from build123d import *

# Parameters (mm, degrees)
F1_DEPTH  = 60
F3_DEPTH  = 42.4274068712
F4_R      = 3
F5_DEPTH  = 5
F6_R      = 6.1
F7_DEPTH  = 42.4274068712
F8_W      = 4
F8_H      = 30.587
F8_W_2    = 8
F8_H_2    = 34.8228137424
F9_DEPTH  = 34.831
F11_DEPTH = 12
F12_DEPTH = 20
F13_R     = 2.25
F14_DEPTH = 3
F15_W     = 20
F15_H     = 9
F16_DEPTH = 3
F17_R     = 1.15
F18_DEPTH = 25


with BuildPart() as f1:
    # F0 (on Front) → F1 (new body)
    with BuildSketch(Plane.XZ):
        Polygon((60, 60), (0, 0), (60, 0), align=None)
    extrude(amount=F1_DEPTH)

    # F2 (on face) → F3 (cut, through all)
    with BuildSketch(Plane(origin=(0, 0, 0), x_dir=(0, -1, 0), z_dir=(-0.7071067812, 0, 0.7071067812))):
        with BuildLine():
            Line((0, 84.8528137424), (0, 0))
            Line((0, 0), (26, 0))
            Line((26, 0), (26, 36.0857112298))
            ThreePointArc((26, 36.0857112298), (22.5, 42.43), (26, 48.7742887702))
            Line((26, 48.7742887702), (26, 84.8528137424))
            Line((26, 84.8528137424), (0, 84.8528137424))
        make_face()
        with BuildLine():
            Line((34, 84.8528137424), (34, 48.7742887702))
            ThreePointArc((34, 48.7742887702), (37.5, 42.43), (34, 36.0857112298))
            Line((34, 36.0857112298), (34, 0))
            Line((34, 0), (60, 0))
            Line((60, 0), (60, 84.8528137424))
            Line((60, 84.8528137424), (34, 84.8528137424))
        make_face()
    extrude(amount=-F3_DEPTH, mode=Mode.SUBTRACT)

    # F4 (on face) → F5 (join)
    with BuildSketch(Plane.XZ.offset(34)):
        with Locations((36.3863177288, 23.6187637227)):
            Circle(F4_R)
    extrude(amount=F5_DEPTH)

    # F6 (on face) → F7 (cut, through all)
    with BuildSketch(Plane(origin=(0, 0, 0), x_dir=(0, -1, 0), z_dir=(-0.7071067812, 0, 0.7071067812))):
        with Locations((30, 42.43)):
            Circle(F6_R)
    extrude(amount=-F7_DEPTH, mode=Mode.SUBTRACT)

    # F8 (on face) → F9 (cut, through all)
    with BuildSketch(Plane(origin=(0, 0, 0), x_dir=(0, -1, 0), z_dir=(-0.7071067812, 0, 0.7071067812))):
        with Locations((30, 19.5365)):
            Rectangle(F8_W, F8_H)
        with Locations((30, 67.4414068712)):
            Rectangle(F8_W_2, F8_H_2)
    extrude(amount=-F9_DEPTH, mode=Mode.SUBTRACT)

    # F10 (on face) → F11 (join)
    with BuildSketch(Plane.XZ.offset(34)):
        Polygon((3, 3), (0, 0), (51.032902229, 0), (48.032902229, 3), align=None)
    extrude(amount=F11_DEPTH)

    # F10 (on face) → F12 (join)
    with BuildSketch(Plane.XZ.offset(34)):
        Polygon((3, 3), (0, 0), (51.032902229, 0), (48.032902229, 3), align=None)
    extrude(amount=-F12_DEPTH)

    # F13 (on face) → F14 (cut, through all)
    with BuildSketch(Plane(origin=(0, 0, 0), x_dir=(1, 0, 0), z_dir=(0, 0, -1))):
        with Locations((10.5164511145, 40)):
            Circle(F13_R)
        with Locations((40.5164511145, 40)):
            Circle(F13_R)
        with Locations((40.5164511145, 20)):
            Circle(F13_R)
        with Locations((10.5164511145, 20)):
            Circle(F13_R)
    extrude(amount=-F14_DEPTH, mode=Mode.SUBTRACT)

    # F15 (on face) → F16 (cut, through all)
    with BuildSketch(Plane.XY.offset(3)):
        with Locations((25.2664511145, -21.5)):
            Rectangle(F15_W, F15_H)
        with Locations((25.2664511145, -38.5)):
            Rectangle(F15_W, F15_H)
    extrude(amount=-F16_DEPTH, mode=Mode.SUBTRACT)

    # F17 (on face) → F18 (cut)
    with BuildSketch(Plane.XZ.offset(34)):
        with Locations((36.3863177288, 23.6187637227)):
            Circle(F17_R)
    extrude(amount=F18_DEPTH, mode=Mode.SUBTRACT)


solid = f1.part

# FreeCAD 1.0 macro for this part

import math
import FreeCAD as App
import Part
import Sketcher

V = App.Vector


def add_polygon(sketch, points):
    """Adds a closed chain of lines whose ends are joined by coincident constraints."""
    first, n = sketch.GeometryCount, len(points)
    for a, b in zip(points, points[1:] + points[:1]):
        sketch.addGeometry(Part.LineSegment(App.Vector(*a, 0), App.Vector(*b, 0)), False)
    for i in range(n):
        sketch.addConstraint(Sketcher.Constraint("Coincident", first + i, 2, first + (i + 1) % n, 1))

doc = App.newDocument("Part")
body = doc.addObject("PartDesign::Body", "Body")

sketch1 = body.newObject("Sketcher::SketchObject", "Sketch")
sketch1.AttachmentSupport = (doc.getObject("XZ_Plane"), [""])
sketch1.MapMode = "FlatFace"
add_polygon(sketch1, [(60, 60), (0, 0), (60, 0)])
sketch1.addConstraint([
    Sketcher.Constraint("Horizontal", 1),
    Sketcher.Constraint("Vertical", 2),
    Sketcher.Constraint("Coincident", 0, 2, -1, 1),
    Sketcher.Constraint("Equal", 1, 2),
    Sketcher.Constraint("DistanceX", 1, 1, 1, 2, 60.0),
])
pad1 = body.newObject("PartDesign::Pad", "Pad")
pad1.Profile = sketch1
pad1.Length = 60

sketch2 = body.newObject("Sketcher::SketchObject", "Sketch001")
sketch2.Placement = App.Placement(V(0, 0, 0), App.Rotation(V(0, -1, 0), V(0.707106781, 0, 0.707106781), V(-0.707106781, 0, 0.707106781), "ZXY"))
sketch2.addGeometry([
    Part.LineSegment(V(0, 85, 0), V(0, 0, 0)),
    Part.LineSegment(V(0, 0, 0), V(26, 0, 0)),
    Part.LineSegment(V(26, 0, 0), V(26, 36, 0)),
    Part.ArcOfCircle(Part.Circle(V(30, 42, 0), V(0, 0, 1), 8), math.radians(122), math.radians(238)),
    Part.LineSegment(V(26, 49, 0), V(26, 85, 0)),
    Part.LineSegment(V(26, 85, 0), V(0, 85, 0)),
    Part.LineSegment(V(34, 85, 0), V(34, 49, 0)),
    Part.ArcOfCircle(Part.Circle(V(30, 42, 0), V(0, 0, 1), 8), math.radians(-58), math.radians(58)),
    Part.LineSegment(V(34, 36, 0), V(34, 0, 0)),
    Part.LineSegment(V(34, 0, 0), V(60, 0, 0)),
    Part.LineSegment(V(60, 0, 0), V(60, 85, 0)),
    Part.LineSegment(V(60, 85, 0), V(34, 85, 0)),
], False)
sketch2.addConstraint([
    Sketcher.Constraint("Coincident", 0, 2, 1, 1),
    Sketcher.Constraint("Coincident", 1, 2, 2, 1),
    Sketcher.Constraint("Coincident", 2, 2, 3, 2),
    Sketcher.Constraint("Coincident", 3, 1, 4, 1),
    Sketcher.Constraint("Coincident", 4, 2, 5, 1),
    Sketcher.Constraint("Coincident", 5, 2, 0, 1),
    Sketcher.Constraint("Coincident", 6, 2, 7, 2),
    Sketcher.Constraint("Coincident", 7, 1, 8, 1),
    Sketcher.Constraint("Coincident", 8, 2, 9, 1),
    Sketcher.Constraint("Coincident", 9, 2, 10, 1),
    Sketcher.Constraint("Coincident", 10, 2, 11, 1),
    Sketcher.Constraint("Coincident", 11, 2, 6, 1),
    Sketcher.Constraint("Vertical", 0),
    Sketcher.Constraint("Horizontal", 1),
    Sketcher.Constraint("Vertical", 2),
    Sketcher.Constraint("Vertical", 4),
    Sketcher.Constraint("Horizontal", 5),
    Sketcher.Constraint("Vertical", 6),
    Sketcher.Constraint("Vertical", 8),
    Sketcher.Constraint("Horizontal", 9),
    Sketcher.Constraint("Vertical", 10),
    Sketcher.Constraint("Horizontal", 11),
    Sketcher.Constraint("Coincident", 0, 2, -1, 1),
    Sketcher.Constraint("Coincident", 7, 3, 3, 3),
    Sketcher.Constraint("Equal", 3, 7),
    Sketcher.Constraint("PointOnObject", 8, 2, -1),
    Sketcher.Constraint("Horizontal", 3, 1, 6, 2),
    Sketcher.Constraint("Horizontal", 2, 2, 7, 1),
    Sketcher.Constraint("Horizontal", 5, 2, 10, 2),
    Sketcher.Constraint("Vertical", 2, 2, 3, 1),
    Sketcher.Constraint("Equal", 5, 9),
    Sketcher.Constraint("Radius", 3, 7.5),
    Sketcher.Constraint("DistanceX", 1, 1, 1, 2, 26.0),
    Sketcher.Constraint("DistanceX", -1, 1, 3, 3, 30.0),
    Sketcher.Constraint("DistanceY", -1, 1, 3, 3, 42.43),
    Sketcher.Constraint("DistanceY", 0, 2, 0, 1, 84.852814),
])
pocket1 = body.newObject("PartDesign::Pocket", "Pocket")
pocket1.Profile = sketch2
pocket1.Type = "ThroughAll"

sketch3 = body.newObject("Sketcher::SketchObject", "Sketch002")
sketch3.AttachmentSupport = (doc.getObject("XZ_Plane"), [""])
sketch3.MapMode = "FlatFace"
sketch3.AttachmentOffset = App.Placement(V(0, 0, 34), App.Rotation())
sketch3.addGeometry(Part.Circle(V(36.4, 23.6, 0), V(0, 0, 1), 3), False)
sketch3.addConstraint([
    Sketcher.Constraint("Diameter", 0, 6.0),
    Sketcher.Constraint("DistanceX", -1, 1, 0, 3, 36.386318),
    Sketcher.Constraint("DistanceY", -1, 1, 0, 3, 23.618764),
])
pad2 = body.newObject("PartDesign::Pad", "Pad001")
pad2.Profile = sketch3
pad2.Length = 5

sketch4 = body.newObject("Sketcher::SketchObject", "Sketch003")
sketch4.Placement = App.Placement(V(0, 0, 0), App.Rotation(V(0, -1, 0), V(0.707106781, 0, 0.707106781), V(-0.707106781, 0, 0.707106781), "ZXY"))
sketch4.addGeometry(Part.Circle(V(30, 42, 0), V(0, 0, 1), 6), False)
sketch4.addConstraint([
    Sketcher.Constraint("Diameter", 0, 12.2),
    Sketcher.Constraint("DistanceX", -1, 1, 0, 3, 30.0),
    Sketcher.Constraint("DistanceY", -1, 1, 0, 3, 42.43),
])
pocket2 = body.newObject("PartDesign::Pocket", "Pocket001")
pocket2.Profile = sketch4
pocket2.Type = "ThroughAll"

sketch5 = body.newObject("Sketcher::SketchObject", "Sketch004")
sketch5.Placement = App.Placement(V(0, 0, 0), App.Rotation(V(0, -1, 0), V(0.707106781, 0, 0.707106781), V(-0.707106781, 0, 0.707106781), "ZXY"))
add_polygon(sketch5, [(28, 34.8), (28, 4.2), (32, 4.2), (32, 34.8)])
add_polygon(sketch5, [(26, 84.9), (26, 50), (34, 50), (34, 84.9)])
sketch5.addConstraint([
    Sketcher.Constraint("Vertical", 0),
    Sketcher.Constraint("Horizontal", 1),
    Sketcher.Constraint("Vertical", 2),
    Sketcher.Constraint("Horizontal", 3),
    Sketcher.Constraint("Vertical", 4),
    Sketcher.Constraint("Horizontal", 5),
    Sketcher.Constraint("Vertical", 6),
    Sketcher.Constraint("Horizontal", 7),
    Sketcher.Constraint("DistanceX", 1, 1, 1, 2, 4.0),
    Sketcher.Constraint("DistanceX", 5, 1, 5, 2, 8.0),
    Sketcher.Constraint("DistanceX", -1, 1, 0, 2, 28.0),
    Sketcher.Constraint("DistanceX", -1, 1, 4, 2, 26.0),
    Sketcher.Constraint("DistanceY", 3, 2, 4, 2, 15.2),
    Sketcher.Constraint("DistanceY", 0, 2, 0, 1, 30.587),
    Sketcher.Constraint("DistanceY", -1, 1, 2, 2, 34.83),
    Sketcher.Constraint("DistanceY", 4, 2, 4, 1, 34.822814),
])
pocket3 = body.newObject("PartDesign::Pocket", "Pocket002")
pocket3.Profile = sketch5
pocket3.Type = "ThroughAll"

sketch6 = body.newObject("Sketcher::SketchObject", "Sketch005")
sketch6.AttachmentSupport = (doc.getObject("XZ_Plane"), [""])
sketch6.MapMode = "FlatFace"
sketch6.AttachmentOffset = App.Placement(V(0, 0, 34), App.Rotation())
add_polygon(sketch6, [(3, 3), (0, 0), (51, 0), (48, 3)])
sketch6.addConstraint([
    Sketcher.Constraint("Horizontal", 1),
    Sketcher.Constraint("Horizontal", 3),
    Sketcher.Constraint("Coincident", 0, 2, -1, 1),
    Sketcher.Constraint("Perpendicular", 0, 2),
    Sketcher.Constraint("Equal", 0, 2),
    Sketcher.Constraint("DistanceY", -1, 1, 2, 2, 3.0),
    Sketcher.Constraint("DistanceX", 1, 1, 1, 2, 51.032902),
])
pad3 = body.newObject("PartDesign::Pad", "Pad002")
pad3.Profile = sketch6
pad3.Length = 12

sketch7 = body.newObject("Sketcher::SketchObject", "Sketch006")
sketch7.AttachmentSupport = (doc.getObject("XZ_Plane"), [""])
sketch7.MapMode = "FlatFace"
sketch7.AttachmentOffset = App.Placement(V(0, 0, 34), App.Rotation())
add_polygon(sketch7, [(3, 3), (0, 0), (51, 0), (48, 3)])
sketch7.addConstraint([
    Sketcher.Constraint("Horizontal", 1),
    Sketcher.Constraint("Horizontal", 3),
    Sketcher.Constraint("Coincident", 0, 2, -1, 1),
    Sketcher.Constraint("Perpendicular", 0, 2),
    Sketcher.Constraint("Equal", 0, 2),
    Sketcher.Constraint("DistanceY", -1, 1, 2, 2, 3.0),
    Sketcher.Constraint("DistanceX", 1, 1, 1, 2, 51.032902),
])
pad4 = body.newObject("PartDesign::Pad", "Pad003")
pad4.Profile = sketch7
pad4.Length = 20
pad4.Reversed = True

sketch8 = body.newObject("Sketcher::SketchObject", "Sketch007")
sketch8.AttachmentSupport = (doc.getObject("XY_Plane"), [""])
sketch8.MapMode = "FlatFace"
sketch8.addGeometry([
    Part.Circle(V(10.5, -40, 0), V(0, 0, 1), 2.2),
    Part.Circle(V(40.5, -40, 0), V(0, 0, 1), 2.2),
    Part.Circle(V(40.5, -20, 0), V(0, 0, 1), 2.2),
    Part.Circle(V(10.5, -20, 0), V(0, 0, 1), 2.2),
], False)
sketch8.addConstraint([
    Sketcher.Constraint("Equal", 0, 1),
    Sketcher.Constraint("Equal", 1, 2),
    Sketcher.Constraint("Equal", 2, 3),
    Sketcher.Constraint("Horizontal", 0, 3, 1, 3),
    Sketcher.Constraint("Horizontal", 2, 3, 3, 3),
    Sketcher.Constraint("Vertical", 1, 3, 2, 3),
    Sketcher.Constraint("Vertical", 0, 3, 3, 3),
    Sketcher.Constraint("Diameter", 0, 4.5),
    Sketcher.Constraint("DistanceY", 0, 3, -1, 1, 40.0),
    Sketcher.Constraint("DistanceY", 2, 3, -1, 1, 20.0),
    Sketcher.Constraint("DistanceX", 0, 3, 1, 3, 30.0),
    Sketcher.Constraint("DistanceX", -1, 1, 0, 3, 10.516451),
])
pocket4 = body.newObject("PartDesign::Pocket", "Pocket003")
pocket4.Profile = sketch8
pocket4.Length = 3
pocket4.Reversed = True

sketch9 = body.newObject("Sketcher::SketchObject", "Sketch008")
sketch9.AttachmentSupport = (doc.getObject("XY_Plane"), [""])
sketch9.MapMode = "FlatFace"
sketch9.AttachmentOffset = App.Placement(V(0, 0, 3), App.Rotation())
add_polygon(sketch9, [(15, -17), (15, -26), (35, -26), (35, -17)])
add_polygon(sketch9, [(15, -34), (15, -43), (35, -43), (35, -34)])
sketch9.addConstraint([
    Sketcher.Constraint("Vertical", 0),
    Sketcher.Constraint("Horizontal", 1),
    Sketcher.Constraint("Vertical", 2),
    Sketcher.Constraint("Horizontal", 3),
    Sketcher.Constraint("Vertical", 4),
    Sketcher.Constraint("Horizontal", 5),
    Sketcher.Constraint("Vertical", 6),
    Sketcher.Constraint("Horizontal", 7),
    Sketcher.Constraint("Vertical", 3, 2, 4, 2),
    Sketcher.Constraint("Vertical", 2, 2, 5, 2),
    Sketcher.Constraint("Equal", 2, 4),
    Sketcher.Constraint("DistanceX", 1, 1, 1, 2, 20.0),
    Sketcher.Constraint("DistanceY", 0, 2, 0, 1, 9.0),
    Sketcher.Constraint("DistanceY", 0, 2, -1, 1, 26.0),
    Sketcher.Constraint("DistanceY", 4, 2, -1, 1, 43.0),
    Sketcher.Constraint("DistanceX", -1, 1, 0, 2, 15.266451),
])
pocket5 = body.newObject("PartDesign::Pocket", "Pocket004")
pocket5.Profile = sketch9
pocket5.Type = "ThroughAll"

sketch10 = body.newObject("Sketcher::SketchObject", "Sketch009")
sketch10.AttachmentSupport = (doc.getObject("XZ_Plane"), [""])
sketch10.MapMode = "FlatFace"
sketch10.AttachmentOffset = App.Placement(V(0, 0, 34), App.Rotation())
sketch10.addGeometry(Part.Circle(V(36.4, 23.6, 0), V(0, 0, 1), 1.1), False)
sketch10.addConstraint([
    Sketcher.Constraint("Diameter", 0, 2.3),
    Sketcher.Constraint("DistanceX", -1, 1, 0, 3, 36.386318),
    Sketcher.Constraint("DistanceY", -1, 1, 0, 3, 23.618764),
])
pocket6 = body.newObject("PartDesign::Pocket", "Pocket005")
pocket6.Profile = sketch10
pocket6.Length = 25
pocket6.Reversed = True

doc.recompute()
